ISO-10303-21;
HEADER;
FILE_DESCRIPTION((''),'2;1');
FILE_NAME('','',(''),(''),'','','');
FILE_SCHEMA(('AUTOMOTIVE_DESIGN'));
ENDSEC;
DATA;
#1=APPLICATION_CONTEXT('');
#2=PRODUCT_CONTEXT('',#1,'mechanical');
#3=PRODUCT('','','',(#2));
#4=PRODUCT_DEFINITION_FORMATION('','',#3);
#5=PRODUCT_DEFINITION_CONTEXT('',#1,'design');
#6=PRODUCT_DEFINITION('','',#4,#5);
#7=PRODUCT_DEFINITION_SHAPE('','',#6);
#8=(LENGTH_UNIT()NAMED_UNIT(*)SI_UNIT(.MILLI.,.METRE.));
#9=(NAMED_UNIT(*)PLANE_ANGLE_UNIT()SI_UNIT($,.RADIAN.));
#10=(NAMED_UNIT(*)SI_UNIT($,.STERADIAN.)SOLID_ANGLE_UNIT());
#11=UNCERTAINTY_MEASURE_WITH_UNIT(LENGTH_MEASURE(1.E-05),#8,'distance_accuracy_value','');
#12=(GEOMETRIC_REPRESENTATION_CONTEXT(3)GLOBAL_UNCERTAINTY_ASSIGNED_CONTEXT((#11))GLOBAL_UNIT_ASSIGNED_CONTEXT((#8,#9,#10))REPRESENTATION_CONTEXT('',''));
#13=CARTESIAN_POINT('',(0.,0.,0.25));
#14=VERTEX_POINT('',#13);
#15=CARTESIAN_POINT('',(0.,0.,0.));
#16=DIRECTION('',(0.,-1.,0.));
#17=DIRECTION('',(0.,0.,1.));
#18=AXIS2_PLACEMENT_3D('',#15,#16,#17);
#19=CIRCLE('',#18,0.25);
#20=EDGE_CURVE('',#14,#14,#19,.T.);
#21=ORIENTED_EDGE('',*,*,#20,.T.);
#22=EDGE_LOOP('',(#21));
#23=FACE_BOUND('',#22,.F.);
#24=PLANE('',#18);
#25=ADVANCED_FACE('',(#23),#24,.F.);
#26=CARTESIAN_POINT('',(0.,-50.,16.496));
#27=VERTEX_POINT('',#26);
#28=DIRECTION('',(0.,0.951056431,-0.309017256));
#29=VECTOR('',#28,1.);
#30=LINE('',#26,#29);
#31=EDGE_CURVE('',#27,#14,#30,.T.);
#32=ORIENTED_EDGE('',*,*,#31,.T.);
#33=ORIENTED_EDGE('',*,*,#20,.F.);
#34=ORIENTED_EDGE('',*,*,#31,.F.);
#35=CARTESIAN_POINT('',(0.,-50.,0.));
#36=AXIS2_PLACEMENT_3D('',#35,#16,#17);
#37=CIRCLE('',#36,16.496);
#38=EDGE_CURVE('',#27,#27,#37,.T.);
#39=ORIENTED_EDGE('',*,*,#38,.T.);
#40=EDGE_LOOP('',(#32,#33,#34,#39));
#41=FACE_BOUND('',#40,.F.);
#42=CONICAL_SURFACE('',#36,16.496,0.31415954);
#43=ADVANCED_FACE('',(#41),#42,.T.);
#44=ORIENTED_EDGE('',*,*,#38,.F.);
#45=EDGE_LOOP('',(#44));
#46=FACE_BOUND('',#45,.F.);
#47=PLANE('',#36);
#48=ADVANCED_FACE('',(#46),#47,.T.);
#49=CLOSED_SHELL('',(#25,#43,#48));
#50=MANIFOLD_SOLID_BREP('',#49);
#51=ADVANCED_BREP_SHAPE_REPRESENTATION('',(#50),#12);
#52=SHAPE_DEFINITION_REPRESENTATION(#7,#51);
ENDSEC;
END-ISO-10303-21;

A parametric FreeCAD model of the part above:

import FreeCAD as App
import Part
import Sketcher
Q = App.Units.Quantity

doc = App.newDocument("Part")
params = doc.addObject("Spreadsheet::Sheet", "Params")
for row, (alias, value) in enumerate([
    ("sketch1_width", "50 mm"),
    ("sketch1_height", "0.25 mm"),
    ("revolution_angle", "360 deg"),
], start=1):
    params.set(f"A{row}", alias)
    params.set(f"B{row}", "=" + value)
    params.setAlias(f"B{row}", alias)

body = doc.addObject("PartDesign::Body", "Body")

# Sketch on YZ plane
sketch1 = body.newObject("Sketcher::SketchObject", "Sketch")
sketch1.AttachmentSupport = (doc.getObject("YZ_Plane"), [""])
sketch1.MapMode = "FlatFace"
sketch1.addGeometry([
    Part.LineSegment(App.Vector(-50, 0, 0), App.Vector(0, 0, 0)),
    Part.LineSegment(App.Vector(0, 0, 0), App.Vector(0, 0.25, 0)),
    Part.LineSegment(App.Vector(0, 0.25, 0), App.Vector(-50, 16.496, 0)),
    Part.LineSegment(App.Vector(-50, 16.496, 0), App.Vector(-50, 0, 0)),
], False)
sketch1.addConstraint([
    Sketcher.Constraint("Coincident", 0, 2, 1, 1),
    Sketcher.Constraint("Coincident", 1, 2, 2, 1),
    Sketcher.Constraint("Coincident", 2, 2, 3, 1),
    Sketcher.Constraint("Coincident", 3, 2, 0, 1),
    Sketcher.Constraint("Horizontal", 0),
    Sketcher.Constraint("Vertical", 1),
    Sketcher.Constraint("Vertical", 3),
    Sketcher.Constraint("Coincident", 0, 2, -1, 1),
    Sketcher.Constraint("DistanceX", 0, 1, 0, 2, 50.0),
    Sketcher.Constraint("Angle", 2, Q("162 deg")),
    Sketcher.Constraint("DistanceY", 1, 1, 1, 2, 0.25),
])
sketch1.setExpression("Constraints[8]", "Params.sketch1_width")
sketch1.setExpression("Constraints[10]", "Params.sketch1_height")
revolution = body.newObject("PartDesign::Revolution", "Revolution")
revolution.Profile = sketch1
revolution.ReferenceAxis = (sketch1, ["H_Axis"])
revolution.setExpression("Angle", "Params.revolution_angle")

doc.recompute()
